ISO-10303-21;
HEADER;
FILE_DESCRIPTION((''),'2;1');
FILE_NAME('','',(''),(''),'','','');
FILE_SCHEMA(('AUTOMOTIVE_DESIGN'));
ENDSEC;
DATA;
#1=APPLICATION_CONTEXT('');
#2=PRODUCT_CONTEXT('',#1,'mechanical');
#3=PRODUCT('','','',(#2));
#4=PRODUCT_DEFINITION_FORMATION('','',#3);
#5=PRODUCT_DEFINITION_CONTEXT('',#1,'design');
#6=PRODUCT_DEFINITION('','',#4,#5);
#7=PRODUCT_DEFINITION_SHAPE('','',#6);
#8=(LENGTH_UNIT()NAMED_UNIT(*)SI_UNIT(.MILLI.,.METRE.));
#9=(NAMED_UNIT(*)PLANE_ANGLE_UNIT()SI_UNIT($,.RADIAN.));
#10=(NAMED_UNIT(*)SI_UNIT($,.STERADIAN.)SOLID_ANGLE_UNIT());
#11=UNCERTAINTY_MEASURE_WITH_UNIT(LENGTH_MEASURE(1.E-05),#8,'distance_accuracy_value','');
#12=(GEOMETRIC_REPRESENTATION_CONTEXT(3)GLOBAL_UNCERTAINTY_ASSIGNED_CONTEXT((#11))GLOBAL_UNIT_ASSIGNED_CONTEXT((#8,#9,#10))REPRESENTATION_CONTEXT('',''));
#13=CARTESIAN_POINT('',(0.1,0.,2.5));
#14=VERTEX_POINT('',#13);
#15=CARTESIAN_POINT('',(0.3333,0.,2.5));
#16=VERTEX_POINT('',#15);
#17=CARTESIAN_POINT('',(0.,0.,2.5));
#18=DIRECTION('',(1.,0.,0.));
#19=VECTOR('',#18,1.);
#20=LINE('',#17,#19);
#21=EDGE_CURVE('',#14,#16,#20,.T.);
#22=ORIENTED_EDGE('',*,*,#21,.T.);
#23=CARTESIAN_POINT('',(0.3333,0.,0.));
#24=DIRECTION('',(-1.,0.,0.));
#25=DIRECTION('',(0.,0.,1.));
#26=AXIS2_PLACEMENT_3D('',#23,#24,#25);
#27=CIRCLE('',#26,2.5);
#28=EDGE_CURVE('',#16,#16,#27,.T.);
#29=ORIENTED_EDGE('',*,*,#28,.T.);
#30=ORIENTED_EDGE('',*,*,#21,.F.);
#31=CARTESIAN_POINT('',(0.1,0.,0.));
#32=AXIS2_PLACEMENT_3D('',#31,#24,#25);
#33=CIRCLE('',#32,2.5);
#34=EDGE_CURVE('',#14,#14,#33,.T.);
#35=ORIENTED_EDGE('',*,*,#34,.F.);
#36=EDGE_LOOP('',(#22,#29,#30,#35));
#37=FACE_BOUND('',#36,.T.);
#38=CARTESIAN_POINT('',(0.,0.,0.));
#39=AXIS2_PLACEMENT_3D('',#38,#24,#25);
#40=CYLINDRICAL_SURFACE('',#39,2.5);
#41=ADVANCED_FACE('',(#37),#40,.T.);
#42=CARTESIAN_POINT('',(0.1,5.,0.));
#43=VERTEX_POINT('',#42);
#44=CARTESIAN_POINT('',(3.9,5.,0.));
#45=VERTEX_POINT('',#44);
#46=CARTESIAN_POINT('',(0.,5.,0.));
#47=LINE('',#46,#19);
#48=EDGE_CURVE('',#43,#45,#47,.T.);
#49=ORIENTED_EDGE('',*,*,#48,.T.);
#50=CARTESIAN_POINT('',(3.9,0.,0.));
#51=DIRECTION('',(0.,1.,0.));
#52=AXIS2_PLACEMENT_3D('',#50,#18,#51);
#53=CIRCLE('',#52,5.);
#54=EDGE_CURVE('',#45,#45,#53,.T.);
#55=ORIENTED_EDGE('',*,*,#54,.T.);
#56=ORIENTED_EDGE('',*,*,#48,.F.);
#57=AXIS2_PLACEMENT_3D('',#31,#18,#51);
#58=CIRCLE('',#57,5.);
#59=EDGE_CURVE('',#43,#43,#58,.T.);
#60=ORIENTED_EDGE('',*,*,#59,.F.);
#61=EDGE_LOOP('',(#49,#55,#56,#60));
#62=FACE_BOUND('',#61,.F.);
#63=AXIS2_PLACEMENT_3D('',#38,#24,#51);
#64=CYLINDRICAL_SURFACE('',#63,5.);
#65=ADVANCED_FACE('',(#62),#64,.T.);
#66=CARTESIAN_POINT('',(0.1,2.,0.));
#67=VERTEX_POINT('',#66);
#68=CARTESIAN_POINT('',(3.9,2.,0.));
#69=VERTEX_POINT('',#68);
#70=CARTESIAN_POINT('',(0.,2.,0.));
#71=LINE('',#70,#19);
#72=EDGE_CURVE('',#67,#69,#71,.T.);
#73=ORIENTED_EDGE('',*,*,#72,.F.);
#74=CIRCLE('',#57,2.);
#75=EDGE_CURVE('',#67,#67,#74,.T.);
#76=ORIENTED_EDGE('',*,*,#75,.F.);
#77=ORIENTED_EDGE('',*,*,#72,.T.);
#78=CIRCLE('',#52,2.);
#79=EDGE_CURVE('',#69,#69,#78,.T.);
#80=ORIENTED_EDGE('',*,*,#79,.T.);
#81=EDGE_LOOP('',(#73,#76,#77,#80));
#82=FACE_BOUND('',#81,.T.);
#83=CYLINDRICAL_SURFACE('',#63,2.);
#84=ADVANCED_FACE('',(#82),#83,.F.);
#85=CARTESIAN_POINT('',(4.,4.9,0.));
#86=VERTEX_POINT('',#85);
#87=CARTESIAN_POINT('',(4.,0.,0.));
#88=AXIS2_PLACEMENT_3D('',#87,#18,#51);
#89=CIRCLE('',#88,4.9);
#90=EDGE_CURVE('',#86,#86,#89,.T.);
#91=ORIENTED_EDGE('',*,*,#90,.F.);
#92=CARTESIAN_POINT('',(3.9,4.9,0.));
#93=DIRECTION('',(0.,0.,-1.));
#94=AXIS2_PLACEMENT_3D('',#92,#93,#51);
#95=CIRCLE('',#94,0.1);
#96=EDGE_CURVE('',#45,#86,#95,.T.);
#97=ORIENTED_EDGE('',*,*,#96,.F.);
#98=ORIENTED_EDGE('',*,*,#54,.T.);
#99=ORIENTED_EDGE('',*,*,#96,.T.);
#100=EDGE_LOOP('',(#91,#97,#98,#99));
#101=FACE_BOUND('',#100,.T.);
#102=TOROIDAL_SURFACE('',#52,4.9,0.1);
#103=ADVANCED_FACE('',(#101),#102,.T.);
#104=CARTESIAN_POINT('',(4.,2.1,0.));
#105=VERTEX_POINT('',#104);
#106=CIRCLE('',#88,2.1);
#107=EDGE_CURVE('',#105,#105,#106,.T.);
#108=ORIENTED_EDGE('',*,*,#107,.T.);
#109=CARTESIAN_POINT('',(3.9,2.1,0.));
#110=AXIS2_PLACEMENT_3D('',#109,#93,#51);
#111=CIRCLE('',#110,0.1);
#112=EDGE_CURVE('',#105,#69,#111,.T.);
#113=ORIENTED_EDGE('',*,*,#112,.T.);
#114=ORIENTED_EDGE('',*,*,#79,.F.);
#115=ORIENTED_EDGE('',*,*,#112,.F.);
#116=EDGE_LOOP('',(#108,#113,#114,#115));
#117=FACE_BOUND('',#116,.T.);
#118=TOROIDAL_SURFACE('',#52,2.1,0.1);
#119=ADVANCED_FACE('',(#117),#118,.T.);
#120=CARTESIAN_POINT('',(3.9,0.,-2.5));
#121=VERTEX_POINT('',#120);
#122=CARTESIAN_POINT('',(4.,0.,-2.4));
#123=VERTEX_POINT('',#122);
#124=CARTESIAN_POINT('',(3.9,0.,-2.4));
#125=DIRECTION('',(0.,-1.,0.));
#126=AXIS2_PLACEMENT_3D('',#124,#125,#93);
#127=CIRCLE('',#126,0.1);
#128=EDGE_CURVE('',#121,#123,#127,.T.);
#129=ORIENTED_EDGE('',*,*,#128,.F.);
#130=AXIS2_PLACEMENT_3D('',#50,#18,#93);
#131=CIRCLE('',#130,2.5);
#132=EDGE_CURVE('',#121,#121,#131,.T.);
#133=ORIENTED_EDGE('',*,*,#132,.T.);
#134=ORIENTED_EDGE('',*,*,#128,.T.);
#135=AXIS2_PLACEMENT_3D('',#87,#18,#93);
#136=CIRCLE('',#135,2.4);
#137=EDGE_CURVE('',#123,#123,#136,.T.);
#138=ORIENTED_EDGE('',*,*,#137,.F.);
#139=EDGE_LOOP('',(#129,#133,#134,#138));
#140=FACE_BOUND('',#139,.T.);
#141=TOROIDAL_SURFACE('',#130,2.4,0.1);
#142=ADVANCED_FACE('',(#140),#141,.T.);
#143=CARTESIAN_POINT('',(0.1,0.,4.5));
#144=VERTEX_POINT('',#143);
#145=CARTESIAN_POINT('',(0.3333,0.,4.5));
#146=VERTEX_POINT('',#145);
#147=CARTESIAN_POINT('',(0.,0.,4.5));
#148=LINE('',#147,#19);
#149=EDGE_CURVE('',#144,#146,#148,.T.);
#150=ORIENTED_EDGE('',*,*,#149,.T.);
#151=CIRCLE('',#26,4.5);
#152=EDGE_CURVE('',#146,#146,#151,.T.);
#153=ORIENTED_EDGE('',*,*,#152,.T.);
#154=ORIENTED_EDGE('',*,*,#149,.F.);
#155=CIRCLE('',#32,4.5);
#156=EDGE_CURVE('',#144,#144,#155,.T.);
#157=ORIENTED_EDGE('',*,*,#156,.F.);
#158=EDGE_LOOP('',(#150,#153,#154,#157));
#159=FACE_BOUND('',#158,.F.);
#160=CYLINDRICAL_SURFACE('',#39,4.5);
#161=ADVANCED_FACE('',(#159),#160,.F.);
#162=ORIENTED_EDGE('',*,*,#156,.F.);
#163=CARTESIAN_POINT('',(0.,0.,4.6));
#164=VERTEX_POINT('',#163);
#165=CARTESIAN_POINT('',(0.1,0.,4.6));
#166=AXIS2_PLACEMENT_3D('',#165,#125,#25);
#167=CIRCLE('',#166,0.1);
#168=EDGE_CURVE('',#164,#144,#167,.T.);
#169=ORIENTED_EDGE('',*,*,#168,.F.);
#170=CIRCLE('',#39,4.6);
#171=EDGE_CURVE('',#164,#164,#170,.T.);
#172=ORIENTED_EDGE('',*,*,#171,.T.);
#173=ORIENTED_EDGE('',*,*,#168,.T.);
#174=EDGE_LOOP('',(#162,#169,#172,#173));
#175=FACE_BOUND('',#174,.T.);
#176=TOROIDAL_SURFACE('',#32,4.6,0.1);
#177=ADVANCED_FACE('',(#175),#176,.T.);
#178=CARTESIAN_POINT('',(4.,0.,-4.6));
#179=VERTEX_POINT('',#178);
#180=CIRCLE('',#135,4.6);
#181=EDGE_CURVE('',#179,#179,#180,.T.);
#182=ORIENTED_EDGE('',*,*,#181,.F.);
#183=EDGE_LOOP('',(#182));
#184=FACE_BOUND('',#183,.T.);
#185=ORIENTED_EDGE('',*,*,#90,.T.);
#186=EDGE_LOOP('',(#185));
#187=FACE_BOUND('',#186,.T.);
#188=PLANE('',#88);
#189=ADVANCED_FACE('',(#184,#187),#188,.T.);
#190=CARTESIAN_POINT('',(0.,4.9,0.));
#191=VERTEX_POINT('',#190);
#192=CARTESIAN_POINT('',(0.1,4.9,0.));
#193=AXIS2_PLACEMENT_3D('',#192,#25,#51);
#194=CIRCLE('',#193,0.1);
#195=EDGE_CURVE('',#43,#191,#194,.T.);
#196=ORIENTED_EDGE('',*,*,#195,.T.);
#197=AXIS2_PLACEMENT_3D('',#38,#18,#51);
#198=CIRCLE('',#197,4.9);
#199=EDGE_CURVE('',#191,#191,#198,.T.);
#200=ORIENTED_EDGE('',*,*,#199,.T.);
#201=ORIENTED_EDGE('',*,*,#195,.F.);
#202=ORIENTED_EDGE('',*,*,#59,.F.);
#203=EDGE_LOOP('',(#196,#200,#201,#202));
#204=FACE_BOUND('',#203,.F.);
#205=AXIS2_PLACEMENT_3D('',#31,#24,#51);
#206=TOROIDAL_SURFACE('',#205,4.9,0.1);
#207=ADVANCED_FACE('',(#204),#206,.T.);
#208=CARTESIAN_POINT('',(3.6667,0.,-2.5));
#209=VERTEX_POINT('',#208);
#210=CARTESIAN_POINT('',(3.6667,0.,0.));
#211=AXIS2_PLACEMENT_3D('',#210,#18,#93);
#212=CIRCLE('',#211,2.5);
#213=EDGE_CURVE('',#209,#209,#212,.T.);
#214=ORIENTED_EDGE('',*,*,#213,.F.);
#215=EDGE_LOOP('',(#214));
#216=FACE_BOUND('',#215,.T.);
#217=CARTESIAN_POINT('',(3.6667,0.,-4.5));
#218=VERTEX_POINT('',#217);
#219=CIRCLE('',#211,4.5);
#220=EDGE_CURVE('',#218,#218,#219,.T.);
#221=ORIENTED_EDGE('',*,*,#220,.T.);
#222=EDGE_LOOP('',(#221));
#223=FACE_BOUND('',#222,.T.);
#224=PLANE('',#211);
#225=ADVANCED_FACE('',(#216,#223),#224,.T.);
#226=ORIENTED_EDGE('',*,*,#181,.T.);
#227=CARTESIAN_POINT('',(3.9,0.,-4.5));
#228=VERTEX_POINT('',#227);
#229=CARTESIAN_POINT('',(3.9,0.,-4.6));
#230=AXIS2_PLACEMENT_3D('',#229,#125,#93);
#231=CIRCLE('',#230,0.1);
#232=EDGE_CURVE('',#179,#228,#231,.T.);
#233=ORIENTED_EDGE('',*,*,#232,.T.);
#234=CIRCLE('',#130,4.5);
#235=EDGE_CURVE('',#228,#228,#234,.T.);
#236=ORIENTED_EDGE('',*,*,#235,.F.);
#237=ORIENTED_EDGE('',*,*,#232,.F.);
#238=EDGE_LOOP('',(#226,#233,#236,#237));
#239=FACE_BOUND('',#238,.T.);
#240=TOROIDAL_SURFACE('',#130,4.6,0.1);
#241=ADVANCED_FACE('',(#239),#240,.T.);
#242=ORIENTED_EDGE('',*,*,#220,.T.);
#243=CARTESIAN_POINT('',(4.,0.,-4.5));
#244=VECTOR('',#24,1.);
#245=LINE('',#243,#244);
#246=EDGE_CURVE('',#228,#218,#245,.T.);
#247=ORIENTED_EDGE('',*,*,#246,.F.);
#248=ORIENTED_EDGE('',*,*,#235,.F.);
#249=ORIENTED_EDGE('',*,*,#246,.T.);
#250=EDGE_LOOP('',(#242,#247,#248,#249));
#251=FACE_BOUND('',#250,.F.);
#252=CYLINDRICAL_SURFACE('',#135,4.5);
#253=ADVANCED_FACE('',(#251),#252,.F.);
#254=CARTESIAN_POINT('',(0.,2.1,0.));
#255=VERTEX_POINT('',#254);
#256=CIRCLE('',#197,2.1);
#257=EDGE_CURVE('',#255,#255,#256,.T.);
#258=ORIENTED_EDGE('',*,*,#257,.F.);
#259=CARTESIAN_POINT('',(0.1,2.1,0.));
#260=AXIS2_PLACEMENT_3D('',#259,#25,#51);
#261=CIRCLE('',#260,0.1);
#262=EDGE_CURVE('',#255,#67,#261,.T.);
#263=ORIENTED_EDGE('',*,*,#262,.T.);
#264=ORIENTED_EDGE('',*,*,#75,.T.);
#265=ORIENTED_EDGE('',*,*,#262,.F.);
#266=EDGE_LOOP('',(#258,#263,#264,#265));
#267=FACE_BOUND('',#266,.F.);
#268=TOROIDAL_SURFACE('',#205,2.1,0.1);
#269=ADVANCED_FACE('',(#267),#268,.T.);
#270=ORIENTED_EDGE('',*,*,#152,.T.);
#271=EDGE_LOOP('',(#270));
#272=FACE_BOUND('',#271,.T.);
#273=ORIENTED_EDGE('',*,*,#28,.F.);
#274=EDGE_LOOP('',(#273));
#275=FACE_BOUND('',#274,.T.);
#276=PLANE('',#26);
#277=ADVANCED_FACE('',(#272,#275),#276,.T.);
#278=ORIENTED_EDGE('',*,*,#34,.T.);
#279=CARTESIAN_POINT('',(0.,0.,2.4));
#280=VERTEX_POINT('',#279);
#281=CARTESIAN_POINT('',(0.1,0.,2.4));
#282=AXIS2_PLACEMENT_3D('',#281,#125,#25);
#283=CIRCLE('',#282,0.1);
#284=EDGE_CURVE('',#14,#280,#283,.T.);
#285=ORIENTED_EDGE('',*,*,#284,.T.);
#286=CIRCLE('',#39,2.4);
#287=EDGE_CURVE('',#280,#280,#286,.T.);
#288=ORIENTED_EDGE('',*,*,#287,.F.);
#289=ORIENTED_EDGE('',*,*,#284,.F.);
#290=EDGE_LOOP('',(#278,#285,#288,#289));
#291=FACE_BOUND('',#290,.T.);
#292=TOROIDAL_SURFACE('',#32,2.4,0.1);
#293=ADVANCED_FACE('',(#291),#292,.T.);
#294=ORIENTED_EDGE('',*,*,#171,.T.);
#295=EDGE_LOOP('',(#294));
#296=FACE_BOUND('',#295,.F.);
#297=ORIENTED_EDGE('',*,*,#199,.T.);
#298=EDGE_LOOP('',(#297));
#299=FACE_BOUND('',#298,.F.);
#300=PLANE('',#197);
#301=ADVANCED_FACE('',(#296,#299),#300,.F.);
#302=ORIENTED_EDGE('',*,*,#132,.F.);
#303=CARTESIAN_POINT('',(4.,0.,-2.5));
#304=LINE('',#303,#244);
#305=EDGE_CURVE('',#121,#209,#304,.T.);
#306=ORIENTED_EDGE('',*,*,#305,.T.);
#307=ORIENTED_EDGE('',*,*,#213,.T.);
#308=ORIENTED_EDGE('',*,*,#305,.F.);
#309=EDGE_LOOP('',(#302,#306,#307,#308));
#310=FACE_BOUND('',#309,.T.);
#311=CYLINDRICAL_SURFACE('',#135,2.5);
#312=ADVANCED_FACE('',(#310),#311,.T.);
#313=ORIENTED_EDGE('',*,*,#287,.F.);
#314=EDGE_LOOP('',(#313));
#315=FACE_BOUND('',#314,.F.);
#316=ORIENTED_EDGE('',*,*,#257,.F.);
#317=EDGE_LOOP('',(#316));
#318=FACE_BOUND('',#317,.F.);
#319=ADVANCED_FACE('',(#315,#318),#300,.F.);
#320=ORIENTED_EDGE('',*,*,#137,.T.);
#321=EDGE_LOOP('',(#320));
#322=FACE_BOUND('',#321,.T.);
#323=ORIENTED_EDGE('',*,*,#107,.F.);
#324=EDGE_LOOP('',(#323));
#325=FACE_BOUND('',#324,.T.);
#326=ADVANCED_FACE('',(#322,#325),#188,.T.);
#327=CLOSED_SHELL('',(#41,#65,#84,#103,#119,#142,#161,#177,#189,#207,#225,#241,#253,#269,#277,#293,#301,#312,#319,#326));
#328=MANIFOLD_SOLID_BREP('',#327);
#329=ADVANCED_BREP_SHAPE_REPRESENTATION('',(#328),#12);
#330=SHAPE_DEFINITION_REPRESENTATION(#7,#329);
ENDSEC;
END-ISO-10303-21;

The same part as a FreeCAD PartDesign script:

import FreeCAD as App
import Part
import Sketcher

V = App.Vector
Q = App.Units.Quantity


def edges_at(feature, points):
    """Names of the edges that pass closest to the given points."""
    edges = feature.Shape.Edges
    near = lambda p: min(range(len(edges)), key=lambda i: edges[i].distToShape(Part.Vertex(*p))[0])
    return sorted({f"Edge{near(p) + 1}" for p in points})

doc = App.newDocument("Part")
body = doc.addObject("PartDesign::Body", "Body")

# Sketch on YZ plane
sketch1 = doc.addObject("Sketcher::SketchObject", "Sketch")
body.addObject(sketch1)
sketch1.AttachmentSupport = (doc.YZ_Plane, [""])
sketch1.MapMode = "FlatFace"
sketch1.addGeometry([
    Part.Circle(V(0, 0, 0), V(0, 0, 1), 5),
    Part.Circle(V(0, 0, 0), V(0, 0, 1), 2),
], False)
sketch1.addConstraint([
    Sketcher.Constraint("Coincident", 0, 3, -1, 1),
    Sketcher.Constraint("Coincident", 1, 3, -1, 1),
    Sketcher.Constraint("Diameter", 0, Q("10 mm")),
    Sketcher.Constraint("Diameter", 1, Q("4 mm")),
])
pad1 = doc.addObject("PartDesign::Pad", "Pad")
body.addObject(pad1)
pad1.Profile = sketch1
pad1.Length = 4

# Sketch on YZ plane
sketch2 = doc.addObject("Sketcher::SketchObject", "Sketch001")
body.addObject(sketch2)
sketch2.AttachmentSupport = (doc.YZ_Plane, [""])
sketch2.MapMode = "FlatFace"
sketch2.AttachmentOffset = App.Placement(V(0, 0, 4), App.Rotation())
sketch2.addGeometry([
    Part.Circle(V(0, 0, 0), V(0, 0, 1), 4.5),
    Part.Circle(V(0, 0, 0), V(0, 0, 1), 2.5),
], False)
sketch2.addConstraint([
    Sketcher.Constraint("Coincident", 0, 3, -1, 1),
    Sketcher.Constraint("Coincident", 1, 3, -1, 1),
    Sketcher.Constraint("Diameter", 0, Q("9 mm")),
    Sketcher.Constraint("Diameter", 1, Q("5 mm")),
])
pocket1 = doc.addObject("PartDesign::Pocket", "Pocket")
body.addObject(pocket1)
pocket1.Profile = sketch2
pocket1.Length = 0.3333

# Sketch on YZ plane
sketch3 = doc.addObject("Sketcher::SketchObject", "Sketch002")
body.addObject(sketch3)
sketch3.AttachmentSupport = (doc.YZ_Plane, [""])
sketch3.MapMode = "FlatFace"
sketch3.addGeometry([
    Part.Circle(V(0, 0, 0), V(0, 0, 1), 4.5),
    Part.Circle(V(0, 0, 0), V(0, 0, 1), 2.5),
], False)
sketch3.addConstraint([
    Sketcher.Constraint("Coincident", 0, 3, -1, 1),
    Sketcher.Constraint("Coincident", 1, 3, -1, 1),
    Sketcher.Constraint("Diameter", 0, Q("9 mm")),
    Sketcher.Constraint("Diameter", 1, Q("5 mm")),
])
pocket2 = doc.addObject("PartDesign::Pocket", "Pocket001")
body.addObject(pocket2)
pocket2.Profile = sketch3
pocket2.Length = 0.3333
pocket2.Reversed = True
doc.recompute()

fillet = doc.addObject("PartDesign::Fillet", "Fillet")
body.addObject(fillet)
fillet.Base = (pocket2, edges_at(pocket2, [
    (4, -5, 0),
    (4, 0, 4.5),
    (4, 0, 2.5),
    (4, -2, 0),
    (0, -5, 0),
    (0, 0, -4.5),
    (0, 0, -2.5),
    (0, -2, 0),
]))
fillet.Radius = 0.1

doc.recompute()
